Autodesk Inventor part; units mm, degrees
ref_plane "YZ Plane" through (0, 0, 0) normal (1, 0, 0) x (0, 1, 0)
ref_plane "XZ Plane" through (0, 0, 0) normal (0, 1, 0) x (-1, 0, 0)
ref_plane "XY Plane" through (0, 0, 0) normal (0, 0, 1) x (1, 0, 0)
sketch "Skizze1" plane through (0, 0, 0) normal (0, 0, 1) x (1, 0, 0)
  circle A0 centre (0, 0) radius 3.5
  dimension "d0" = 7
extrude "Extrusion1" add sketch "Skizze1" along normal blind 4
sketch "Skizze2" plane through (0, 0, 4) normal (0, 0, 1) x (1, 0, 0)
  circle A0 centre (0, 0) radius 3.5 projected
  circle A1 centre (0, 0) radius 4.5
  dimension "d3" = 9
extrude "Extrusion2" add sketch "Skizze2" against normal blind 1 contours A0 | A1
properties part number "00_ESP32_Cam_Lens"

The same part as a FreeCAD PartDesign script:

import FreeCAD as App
import Part
import Sketcher
Q = App.Units.Quantity

doc = App.newDocument("Part")
body = doc.addObject("PartDesign::Body", "Body")

# Sketch on XY plane
sketch1 = body.newObject("Sketcher::SketchObject", "Sketch")
sketch1.AttachmentSupport = (doc.getObject("XY_Plane"), [""])
sketch1.MapMode = "FlatFace"
sketch1.addGeometry(Part.Circle(App.Vector(0, 0, 0), App.Vector(0, 0, 1), 3.5), False)
sketch1.addConstraint(Sketcher.Constraint("Coincident", 0, 3, -1, 1))
sketch1.addConstraint(Sketcher.Constraint("Diameter", 0, Q("7 mm")))
pad1 = body.newObject("PartDesign::Pad", "Pad")
pad1.Profile = sketch1
pad1.Length = 4

# Sketch on XY plane
sketch2 = body.newObject("Sketcher::SketchObject", "Sketch001")
sketch2.AttachmentSupport = (doc.getObject("XY_Plane"), [""])
sketch2.MapMode = "FlatFace"
sketch2.AttachmentOffset = App.Placement(App.Vector(0, 0, 4), App.Rotation())
sketch2.addGeometry(Part.Circle(App.Vector(0, 0, 0), App.Vector(0, 0, 1), 4.5), False)
sketch2.addConstraint(Sketcher.Constraint("Coincident", 0, 3, -1, 1))
sketch2.addConstraint(Sketcher.Constraint("Diameter", 0, Q("9 mm")))
pad2 = body.newObject("PartDesign::Pad", "Pad001")
pad2.Profile = sketch2
pad2.Length = 1
pad2.Reversed = True

doc.recompute()
